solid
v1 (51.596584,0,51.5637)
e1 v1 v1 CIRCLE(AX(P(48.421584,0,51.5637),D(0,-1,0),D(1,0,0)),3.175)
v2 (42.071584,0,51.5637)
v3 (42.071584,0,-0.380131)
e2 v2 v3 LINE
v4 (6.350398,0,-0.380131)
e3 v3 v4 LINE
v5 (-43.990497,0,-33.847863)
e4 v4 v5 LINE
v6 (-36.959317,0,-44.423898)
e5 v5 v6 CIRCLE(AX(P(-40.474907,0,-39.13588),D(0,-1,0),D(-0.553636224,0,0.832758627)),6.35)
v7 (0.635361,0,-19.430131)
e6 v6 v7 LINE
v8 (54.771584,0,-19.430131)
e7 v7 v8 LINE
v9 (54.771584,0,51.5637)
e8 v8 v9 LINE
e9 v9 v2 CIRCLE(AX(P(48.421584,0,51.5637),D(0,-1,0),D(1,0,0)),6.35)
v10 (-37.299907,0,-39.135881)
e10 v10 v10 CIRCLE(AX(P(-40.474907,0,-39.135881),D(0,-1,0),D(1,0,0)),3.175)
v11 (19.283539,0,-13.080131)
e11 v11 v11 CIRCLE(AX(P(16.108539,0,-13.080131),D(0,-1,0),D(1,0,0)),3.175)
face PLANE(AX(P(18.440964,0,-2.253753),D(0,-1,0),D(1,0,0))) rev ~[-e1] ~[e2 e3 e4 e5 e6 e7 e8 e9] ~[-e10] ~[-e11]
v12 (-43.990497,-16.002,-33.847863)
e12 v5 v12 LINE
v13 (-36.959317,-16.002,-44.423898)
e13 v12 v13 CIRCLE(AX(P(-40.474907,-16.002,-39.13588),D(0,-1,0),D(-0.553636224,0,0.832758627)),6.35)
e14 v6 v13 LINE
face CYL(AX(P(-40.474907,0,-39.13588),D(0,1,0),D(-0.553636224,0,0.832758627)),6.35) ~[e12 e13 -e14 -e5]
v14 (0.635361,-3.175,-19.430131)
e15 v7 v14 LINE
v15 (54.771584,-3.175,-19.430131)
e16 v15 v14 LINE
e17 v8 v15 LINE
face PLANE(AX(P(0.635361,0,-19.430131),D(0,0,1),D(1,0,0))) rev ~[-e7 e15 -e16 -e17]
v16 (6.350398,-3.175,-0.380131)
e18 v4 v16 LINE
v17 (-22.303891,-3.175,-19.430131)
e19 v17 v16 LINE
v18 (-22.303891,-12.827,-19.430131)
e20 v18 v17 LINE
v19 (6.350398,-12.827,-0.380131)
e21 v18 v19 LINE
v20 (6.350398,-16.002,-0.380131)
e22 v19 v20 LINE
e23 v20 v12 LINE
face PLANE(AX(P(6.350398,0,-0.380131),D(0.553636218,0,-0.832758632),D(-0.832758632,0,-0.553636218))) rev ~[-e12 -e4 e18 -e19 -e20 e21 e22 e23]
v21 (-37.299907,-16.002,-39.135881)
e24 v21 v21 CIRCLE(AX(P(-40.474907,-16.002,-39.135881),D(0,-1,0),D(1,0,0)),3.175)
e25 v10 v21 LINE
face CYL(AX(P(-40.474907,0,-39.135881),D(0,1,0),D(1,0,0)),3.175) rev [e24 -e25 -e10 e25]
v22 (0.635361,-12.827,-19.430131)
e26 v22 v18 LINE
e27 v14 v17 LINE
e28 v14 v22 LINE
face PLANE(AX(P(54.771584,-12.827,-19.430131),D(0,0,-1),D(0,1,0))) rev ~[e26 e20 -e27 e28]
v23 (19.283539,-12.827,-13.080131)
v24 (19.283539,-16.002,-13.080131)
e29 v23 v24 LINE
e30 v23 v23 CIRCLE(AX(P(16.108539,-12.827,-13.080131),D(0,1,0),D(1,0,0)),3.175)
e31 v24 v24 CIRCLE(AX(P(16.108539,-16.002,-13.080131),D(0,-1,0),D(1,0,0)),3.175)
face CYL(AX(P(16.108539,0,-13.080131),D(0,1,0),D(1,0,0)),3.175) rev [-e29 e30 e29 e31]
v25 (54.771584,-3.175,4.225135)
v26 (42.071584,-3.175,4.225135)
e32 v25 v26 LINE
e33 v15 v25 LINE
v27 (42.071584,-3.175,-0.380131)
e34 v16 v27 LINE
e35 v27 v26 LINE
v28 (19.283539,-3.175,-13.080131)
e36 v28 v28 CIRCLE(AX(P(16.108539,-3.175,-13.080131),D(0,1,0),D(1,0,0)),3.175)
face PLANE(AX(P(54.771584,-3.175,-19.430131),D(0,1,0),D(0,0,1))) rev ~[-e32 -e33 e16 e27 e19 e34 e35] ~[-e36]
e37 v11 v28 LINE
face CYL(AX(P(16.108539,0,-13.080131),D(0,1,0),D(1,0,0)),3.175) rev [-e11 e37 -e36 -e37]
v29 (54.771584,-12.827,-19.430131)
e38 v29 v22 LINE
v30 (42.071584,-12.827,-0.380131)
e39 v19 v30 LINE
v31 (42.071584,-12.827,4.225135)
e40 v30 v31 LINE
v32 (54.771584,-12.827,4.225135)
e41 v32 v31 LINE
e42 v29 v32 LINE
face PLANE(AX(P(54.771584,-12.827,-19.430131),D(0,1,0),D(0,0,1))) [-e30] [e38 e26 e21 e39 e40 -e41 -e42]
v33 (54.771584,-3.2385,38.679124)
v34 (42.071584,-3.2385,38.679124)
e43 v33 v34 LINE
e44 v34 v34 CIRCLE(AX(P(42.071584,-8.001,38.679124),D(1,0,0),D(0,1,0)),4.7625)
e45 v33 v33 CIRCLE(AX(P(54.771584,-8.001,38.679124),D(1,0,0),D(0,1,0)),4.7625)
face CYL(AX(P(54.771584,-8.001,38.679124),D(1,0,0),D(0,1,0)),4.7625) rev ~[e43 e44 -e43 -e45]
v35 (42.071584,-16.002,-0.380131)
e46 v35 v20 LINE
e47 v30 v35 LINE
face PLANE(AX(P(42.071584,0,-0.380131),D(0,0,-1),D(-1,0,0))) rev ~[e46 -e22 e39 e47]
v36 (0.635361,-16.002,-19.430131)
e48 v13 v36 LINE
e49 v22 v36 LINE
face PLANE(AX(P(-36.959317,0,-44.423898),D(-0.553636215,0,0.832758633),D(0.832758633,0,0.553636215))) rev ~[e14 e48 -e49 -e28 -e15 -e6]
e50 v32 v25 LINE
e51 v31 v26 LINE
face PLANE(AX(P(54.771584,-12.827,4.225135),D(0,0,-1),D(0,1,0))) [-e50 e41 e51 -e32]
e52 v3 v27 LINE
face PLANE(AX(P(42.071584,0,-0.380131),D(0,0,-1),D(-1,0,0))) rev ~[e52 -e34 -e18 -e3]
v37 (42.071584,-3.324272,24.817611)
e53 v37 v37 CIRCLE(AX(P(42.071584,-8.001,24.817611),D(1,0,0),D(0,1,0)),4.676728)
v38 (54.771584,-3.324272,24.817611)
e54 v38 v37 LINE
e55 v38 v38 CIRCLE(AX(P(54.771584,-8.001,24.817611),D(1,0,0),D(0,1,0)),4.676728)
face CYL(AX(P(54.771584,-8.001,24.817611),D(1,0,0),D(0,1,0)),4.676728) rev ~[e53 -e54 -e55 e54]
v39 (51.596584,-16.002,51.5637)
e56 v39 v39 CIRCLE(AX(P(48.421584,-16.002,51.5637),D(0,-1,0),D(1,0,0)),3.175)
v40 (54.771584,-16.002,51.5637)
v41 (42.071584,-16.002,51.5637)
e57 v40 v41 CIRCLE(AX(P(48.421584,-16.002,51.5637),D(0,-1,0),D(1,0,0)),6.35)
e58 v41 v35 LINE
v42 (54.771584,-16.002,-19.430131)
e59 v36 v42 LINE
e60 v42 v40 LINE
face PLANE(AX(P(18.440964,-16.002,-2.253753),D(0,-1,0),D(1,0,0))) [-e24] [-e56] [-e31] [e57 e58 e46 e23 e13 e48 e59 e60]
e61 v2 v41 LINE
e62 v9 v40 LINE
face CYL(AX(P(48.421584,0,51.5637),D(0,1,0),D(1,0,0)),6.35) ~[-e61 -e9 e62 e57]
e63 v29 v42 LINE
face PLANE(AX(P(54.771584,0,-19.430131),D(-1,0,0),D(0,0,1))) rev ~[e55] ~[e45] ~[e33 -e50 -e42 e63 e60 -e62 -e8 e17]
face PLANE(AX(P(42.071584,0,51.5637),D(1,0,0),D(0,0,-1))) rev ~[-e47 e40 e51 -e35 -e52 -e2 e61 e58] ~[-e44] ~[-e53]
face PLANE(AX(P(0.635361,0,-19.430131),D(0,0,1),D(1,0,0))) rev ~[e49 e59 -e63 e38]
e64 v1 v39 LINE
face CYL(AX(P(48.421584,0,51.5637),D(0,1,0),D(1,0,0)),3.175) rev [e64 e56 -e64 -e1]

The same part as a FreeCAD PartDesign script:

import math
import FreeCAD as App
import Part
import Sketcher
from FreeCAD import Vector
Q = App.Units.Quantity


def add_polygon(sketch, points):
    """Adds a closed chain of lines whose ends are joined by coincident constraints."""
    first, n = sketch.GeometryCount, len(points)
    for a, b in zip(points, points[1:] + points[:1]):
        sketch.addGeometry(Part.LineSegment(App.Vector(*a, 0), App.Vector(*b, 0)), False)
    for i in range(n):
        sketch.addConstraint(Sketcher.Constraint("Coincident", first + i, 2, first + (i + 1) % n, 1))

doc = App.newDocument("Part")
body = doc.addObject("PartDesign::Body", "Body")

sketch1 = body.newObject("Sketcher::SketchObject", "Sketch")
sketch1.AttachmentSupport = (doc.getObject("XZ_Plane"), [""])
sketch1.MapMode = "FlatFace"
sketch1.addGeometry(Part.LineSegment(Vector(54.8, -19.4, 0), Vector(54.8, 51.6, 0)), False)
sketch1.addGeometry(Part.ArcOfCircle(Part.Circle(Vector(48.4, 51.6, 0), Vector(0, 0, 1), 6.3), math.radians(0), math.radians(180)), False)
sketch1.addGeometry(Part.LineSegment(Vector(42.1, 51.6, 0), Vector(42.1, -0.4, 0)), False)
sketch1.addGeometry(Part.LineSegment(Vector(42.1, -0.4, 0), Vector(6.4, -0.4, 0)), False)
sketch1.addGeometry(Part.LineSegment(Vector(6.4, -0.4, 0), Vector(-44, -33.8, 0)), False)
sketch1.addGeometry(Part.ArcOfCircle(Part.Circle(Vector(-40.5, -39.1, 0), Vector(0, 0, 1), 6.4), math.radians(124), math.radians(304)), False)
sketch1.addGeometry(Part.LineSegment(Vector(-37, -44.4, 0), Vector(0.6, -19.4, 0)), False)
sketch1.addGeometry(Part.LineSegment(Vector(0.6, -19.4, 0), Vector(54.8, -19.4, 0)), False)
sketch1.addGeometry(Part.Circle(Vector(-40.5, -39.1, 0), Vector(0, 0, 1), 3.2), False)
sketch1.addGeometry(Part.Circle(Vector(16.1, -13.1, 0), Vector(0, 0, 1), 3.2), False)
sketch1.addGeometry(Part.Circle(Vector(48.4, 51.6, 0), Vector(0, 0, 1), 3.2), False)
sketch1.addConstraint(Sketcher.Constraint("Tangent", 0, 2, 1, 1))
sketch1.addConstraint(Sketcher.Constraint("Tangent", 1, 2, 2, 1))
sketch1.addConstraint(Sketcher.Constraint("Coincident", 2, 2, 3, 1))
sketch1.addConstraint(Sketcher.Constraint("Coincident", 3, 2, 4, 1))
sketch1.addConstraint(Sketcher.Constraint("Tangent", 4, 2, 5, 1))
sketch1.addConstraint(Sketcher.Constraint("Tangent", 5, 2, 6, 1))
sketch1.addConstraint(Sketcher.Constraint("Coincident", 6, 2, 7, 1))
sketch1.addConstraint(Sketcher.Constraint("Coincident", 7, 2, 0, 1))
sketch1.addConstraint(Sketcher.Constraint("Vertical", 0))
sketch1.addConstraint(Sketcher.Constraint("Vertical", 2))
sketch1.addConstraint(Sketcher.Constraint("Horizontal", 3))
sketch1.addConstraint(Sketcher.Constraint("Horizontal", 7))
sketch1.addConstraint(Sketcher.Constraint("Coincident", 8, 3, 5, 3))
sketch1.addConstraint(Sketcher.Constraint("Coincident", 10, 3, 1, 3))
sketch1.addConstraint(Sketcher.Constraint("Equal", 1, 5))
sketch1.addConstraint(Sketcher.Constraint("Equal", 8, 9))
sketch1.addConstraint(Sketcher.Constraint("Equal", 9, 10))
sketch1.addConstraint(Sketcher.Constraint("Parallel", 4, 6))
sketch1.addConstraint(Sketcher.Constraint("Diameter", 8, Q("0.25 in")))
sketch1.addConstraint(Sketcher.Constraint("Radius", 1, Q("0.25 in")))
sketch1.addConstraint(Sketcher.Constraint("DistanceY", 9, 3, 2, 2, Q("0.5 in")))
sketch1.addConstraint(Sketcher.Constraint("DistanceY", 6, 2, 9, 3, Q("0.25 in")))
sketch1.addConstraint(Sketcher.Constraint("DistanceY", 0, 1, 0, 2, Q("70.993831 mm")))
sketch1.addConstraint(Sketcher.Constraint("DistanceY", -1, 1, 1, 3, Q("51.5637 mm")))
sketch1.addConstraint(Sketcher.Constraint("DistanceX", -1, 1, 3, 2, Q("6.350398 mm")))
sketch1.addConstraint(Sketcher.Constraint("DistanceY", 5, 2, -1, 1, Q("44.423898 mm")))
sketch1.addConstraint(Sketcher.Constraint("DistanceX", 3, 2, 3, 1, Q("35.721186 mm")))
sketch1.addConstraint(Sketcher.Constraint("DistanceX", 7, 1, 7, 2, Q("54.136223 mm")))
sketch1.addConstraint(Sketcher.Constraint("DistanceX", -1, 1, 9, 3, Q("16.108539 mm")))
pad1 = body.newObject("PartDesign::Pad", "Pad")
pad1.Profile = sketch1
pad1.Length = Q("0.63 in")

sketch2 = body.newObject("Sketcher::SketchObject", "Sketch001")
sketch2.AttachmentSupport = (doc.getObject("YZ_Plane"), [""])
sketch2.MapMode = "FlatFace"
sketch2.AttachmentOffset = App.Placement(Vector(0, 0, 54.771584), App.Rotation())
sketch2.addGeometry(Part.Circle(Vector(-8, 38.7, 0), Vector(0, 0, 1), 4.8), False)
sketch2.addGeometry(Part.Circle(Vector(-8, 24.8, 0), Vector(0, 0, 1), 4.7), False)
add_polygon(sketch2, [(-12.8, 4.2), (-12.8, -19.4), (-3.2, -19.4), (-3.2, 4.2)])
sketch2.addConstraint(Sketcher.Constraint("Vertical", 2))
sketch2.addConstraint(Sketcher.Constraint("Horizontal", 3))
sketch2.addConstraint(Sketcher.Constraint("Vertical", 4))
sketch2.addConstraint(Sketcher.Constraint("Horizontal", 5))
sketch2.addConstraint(Sketcher.Constraint("Vertical", 0, 3, 1, 3))
sketch2.addConstraint(Sketcher.Constraint("Diameter", 0, Q("0.375 in")))
sketch2.addConstraint(Sketcher.Constraint("DistanceX", 3, 1, 3, 2, Q("0.38 in")))
sketch2.addConstraint(Sketcher.Constraint("DistanceX", 2, 2, 1, 3, Q("0.19 in")))
sketch2.addConstraint(Sketcher.Constraint("DistanceX", 0, 3, -1, 1, Q("0.315 in")))
sketch2.addConstraint(Sketcher.Constraint("Diameter", 1, Q("9.353456 mm")))
sketch2.addConstraint(Sketcher.Constraint("DistanceY", -1, 1, 0, 3, Q("1.5228002 in")))
sketch2.addConstraint(Sketcher.Constraint("DistanceY", 2, 2, 2, 1, Q("23.655266 mm")))
sketch2.addConstraint(Sketcher.Constraint("DistanceY", -1, 1, 1, 3, Q("24.817611 mm")))
sketch2.addConstraint(Sketcher.Constraint("DistanceY", 2, 2, -1, 1, Q("19.430131 mm")))
pocket1 = body.newObject("PartDesign::Pocket", "Pocket")
pocket1.Profile = sketch2
pocket1.Length = Q("4.72 in")

doc.recompute()
